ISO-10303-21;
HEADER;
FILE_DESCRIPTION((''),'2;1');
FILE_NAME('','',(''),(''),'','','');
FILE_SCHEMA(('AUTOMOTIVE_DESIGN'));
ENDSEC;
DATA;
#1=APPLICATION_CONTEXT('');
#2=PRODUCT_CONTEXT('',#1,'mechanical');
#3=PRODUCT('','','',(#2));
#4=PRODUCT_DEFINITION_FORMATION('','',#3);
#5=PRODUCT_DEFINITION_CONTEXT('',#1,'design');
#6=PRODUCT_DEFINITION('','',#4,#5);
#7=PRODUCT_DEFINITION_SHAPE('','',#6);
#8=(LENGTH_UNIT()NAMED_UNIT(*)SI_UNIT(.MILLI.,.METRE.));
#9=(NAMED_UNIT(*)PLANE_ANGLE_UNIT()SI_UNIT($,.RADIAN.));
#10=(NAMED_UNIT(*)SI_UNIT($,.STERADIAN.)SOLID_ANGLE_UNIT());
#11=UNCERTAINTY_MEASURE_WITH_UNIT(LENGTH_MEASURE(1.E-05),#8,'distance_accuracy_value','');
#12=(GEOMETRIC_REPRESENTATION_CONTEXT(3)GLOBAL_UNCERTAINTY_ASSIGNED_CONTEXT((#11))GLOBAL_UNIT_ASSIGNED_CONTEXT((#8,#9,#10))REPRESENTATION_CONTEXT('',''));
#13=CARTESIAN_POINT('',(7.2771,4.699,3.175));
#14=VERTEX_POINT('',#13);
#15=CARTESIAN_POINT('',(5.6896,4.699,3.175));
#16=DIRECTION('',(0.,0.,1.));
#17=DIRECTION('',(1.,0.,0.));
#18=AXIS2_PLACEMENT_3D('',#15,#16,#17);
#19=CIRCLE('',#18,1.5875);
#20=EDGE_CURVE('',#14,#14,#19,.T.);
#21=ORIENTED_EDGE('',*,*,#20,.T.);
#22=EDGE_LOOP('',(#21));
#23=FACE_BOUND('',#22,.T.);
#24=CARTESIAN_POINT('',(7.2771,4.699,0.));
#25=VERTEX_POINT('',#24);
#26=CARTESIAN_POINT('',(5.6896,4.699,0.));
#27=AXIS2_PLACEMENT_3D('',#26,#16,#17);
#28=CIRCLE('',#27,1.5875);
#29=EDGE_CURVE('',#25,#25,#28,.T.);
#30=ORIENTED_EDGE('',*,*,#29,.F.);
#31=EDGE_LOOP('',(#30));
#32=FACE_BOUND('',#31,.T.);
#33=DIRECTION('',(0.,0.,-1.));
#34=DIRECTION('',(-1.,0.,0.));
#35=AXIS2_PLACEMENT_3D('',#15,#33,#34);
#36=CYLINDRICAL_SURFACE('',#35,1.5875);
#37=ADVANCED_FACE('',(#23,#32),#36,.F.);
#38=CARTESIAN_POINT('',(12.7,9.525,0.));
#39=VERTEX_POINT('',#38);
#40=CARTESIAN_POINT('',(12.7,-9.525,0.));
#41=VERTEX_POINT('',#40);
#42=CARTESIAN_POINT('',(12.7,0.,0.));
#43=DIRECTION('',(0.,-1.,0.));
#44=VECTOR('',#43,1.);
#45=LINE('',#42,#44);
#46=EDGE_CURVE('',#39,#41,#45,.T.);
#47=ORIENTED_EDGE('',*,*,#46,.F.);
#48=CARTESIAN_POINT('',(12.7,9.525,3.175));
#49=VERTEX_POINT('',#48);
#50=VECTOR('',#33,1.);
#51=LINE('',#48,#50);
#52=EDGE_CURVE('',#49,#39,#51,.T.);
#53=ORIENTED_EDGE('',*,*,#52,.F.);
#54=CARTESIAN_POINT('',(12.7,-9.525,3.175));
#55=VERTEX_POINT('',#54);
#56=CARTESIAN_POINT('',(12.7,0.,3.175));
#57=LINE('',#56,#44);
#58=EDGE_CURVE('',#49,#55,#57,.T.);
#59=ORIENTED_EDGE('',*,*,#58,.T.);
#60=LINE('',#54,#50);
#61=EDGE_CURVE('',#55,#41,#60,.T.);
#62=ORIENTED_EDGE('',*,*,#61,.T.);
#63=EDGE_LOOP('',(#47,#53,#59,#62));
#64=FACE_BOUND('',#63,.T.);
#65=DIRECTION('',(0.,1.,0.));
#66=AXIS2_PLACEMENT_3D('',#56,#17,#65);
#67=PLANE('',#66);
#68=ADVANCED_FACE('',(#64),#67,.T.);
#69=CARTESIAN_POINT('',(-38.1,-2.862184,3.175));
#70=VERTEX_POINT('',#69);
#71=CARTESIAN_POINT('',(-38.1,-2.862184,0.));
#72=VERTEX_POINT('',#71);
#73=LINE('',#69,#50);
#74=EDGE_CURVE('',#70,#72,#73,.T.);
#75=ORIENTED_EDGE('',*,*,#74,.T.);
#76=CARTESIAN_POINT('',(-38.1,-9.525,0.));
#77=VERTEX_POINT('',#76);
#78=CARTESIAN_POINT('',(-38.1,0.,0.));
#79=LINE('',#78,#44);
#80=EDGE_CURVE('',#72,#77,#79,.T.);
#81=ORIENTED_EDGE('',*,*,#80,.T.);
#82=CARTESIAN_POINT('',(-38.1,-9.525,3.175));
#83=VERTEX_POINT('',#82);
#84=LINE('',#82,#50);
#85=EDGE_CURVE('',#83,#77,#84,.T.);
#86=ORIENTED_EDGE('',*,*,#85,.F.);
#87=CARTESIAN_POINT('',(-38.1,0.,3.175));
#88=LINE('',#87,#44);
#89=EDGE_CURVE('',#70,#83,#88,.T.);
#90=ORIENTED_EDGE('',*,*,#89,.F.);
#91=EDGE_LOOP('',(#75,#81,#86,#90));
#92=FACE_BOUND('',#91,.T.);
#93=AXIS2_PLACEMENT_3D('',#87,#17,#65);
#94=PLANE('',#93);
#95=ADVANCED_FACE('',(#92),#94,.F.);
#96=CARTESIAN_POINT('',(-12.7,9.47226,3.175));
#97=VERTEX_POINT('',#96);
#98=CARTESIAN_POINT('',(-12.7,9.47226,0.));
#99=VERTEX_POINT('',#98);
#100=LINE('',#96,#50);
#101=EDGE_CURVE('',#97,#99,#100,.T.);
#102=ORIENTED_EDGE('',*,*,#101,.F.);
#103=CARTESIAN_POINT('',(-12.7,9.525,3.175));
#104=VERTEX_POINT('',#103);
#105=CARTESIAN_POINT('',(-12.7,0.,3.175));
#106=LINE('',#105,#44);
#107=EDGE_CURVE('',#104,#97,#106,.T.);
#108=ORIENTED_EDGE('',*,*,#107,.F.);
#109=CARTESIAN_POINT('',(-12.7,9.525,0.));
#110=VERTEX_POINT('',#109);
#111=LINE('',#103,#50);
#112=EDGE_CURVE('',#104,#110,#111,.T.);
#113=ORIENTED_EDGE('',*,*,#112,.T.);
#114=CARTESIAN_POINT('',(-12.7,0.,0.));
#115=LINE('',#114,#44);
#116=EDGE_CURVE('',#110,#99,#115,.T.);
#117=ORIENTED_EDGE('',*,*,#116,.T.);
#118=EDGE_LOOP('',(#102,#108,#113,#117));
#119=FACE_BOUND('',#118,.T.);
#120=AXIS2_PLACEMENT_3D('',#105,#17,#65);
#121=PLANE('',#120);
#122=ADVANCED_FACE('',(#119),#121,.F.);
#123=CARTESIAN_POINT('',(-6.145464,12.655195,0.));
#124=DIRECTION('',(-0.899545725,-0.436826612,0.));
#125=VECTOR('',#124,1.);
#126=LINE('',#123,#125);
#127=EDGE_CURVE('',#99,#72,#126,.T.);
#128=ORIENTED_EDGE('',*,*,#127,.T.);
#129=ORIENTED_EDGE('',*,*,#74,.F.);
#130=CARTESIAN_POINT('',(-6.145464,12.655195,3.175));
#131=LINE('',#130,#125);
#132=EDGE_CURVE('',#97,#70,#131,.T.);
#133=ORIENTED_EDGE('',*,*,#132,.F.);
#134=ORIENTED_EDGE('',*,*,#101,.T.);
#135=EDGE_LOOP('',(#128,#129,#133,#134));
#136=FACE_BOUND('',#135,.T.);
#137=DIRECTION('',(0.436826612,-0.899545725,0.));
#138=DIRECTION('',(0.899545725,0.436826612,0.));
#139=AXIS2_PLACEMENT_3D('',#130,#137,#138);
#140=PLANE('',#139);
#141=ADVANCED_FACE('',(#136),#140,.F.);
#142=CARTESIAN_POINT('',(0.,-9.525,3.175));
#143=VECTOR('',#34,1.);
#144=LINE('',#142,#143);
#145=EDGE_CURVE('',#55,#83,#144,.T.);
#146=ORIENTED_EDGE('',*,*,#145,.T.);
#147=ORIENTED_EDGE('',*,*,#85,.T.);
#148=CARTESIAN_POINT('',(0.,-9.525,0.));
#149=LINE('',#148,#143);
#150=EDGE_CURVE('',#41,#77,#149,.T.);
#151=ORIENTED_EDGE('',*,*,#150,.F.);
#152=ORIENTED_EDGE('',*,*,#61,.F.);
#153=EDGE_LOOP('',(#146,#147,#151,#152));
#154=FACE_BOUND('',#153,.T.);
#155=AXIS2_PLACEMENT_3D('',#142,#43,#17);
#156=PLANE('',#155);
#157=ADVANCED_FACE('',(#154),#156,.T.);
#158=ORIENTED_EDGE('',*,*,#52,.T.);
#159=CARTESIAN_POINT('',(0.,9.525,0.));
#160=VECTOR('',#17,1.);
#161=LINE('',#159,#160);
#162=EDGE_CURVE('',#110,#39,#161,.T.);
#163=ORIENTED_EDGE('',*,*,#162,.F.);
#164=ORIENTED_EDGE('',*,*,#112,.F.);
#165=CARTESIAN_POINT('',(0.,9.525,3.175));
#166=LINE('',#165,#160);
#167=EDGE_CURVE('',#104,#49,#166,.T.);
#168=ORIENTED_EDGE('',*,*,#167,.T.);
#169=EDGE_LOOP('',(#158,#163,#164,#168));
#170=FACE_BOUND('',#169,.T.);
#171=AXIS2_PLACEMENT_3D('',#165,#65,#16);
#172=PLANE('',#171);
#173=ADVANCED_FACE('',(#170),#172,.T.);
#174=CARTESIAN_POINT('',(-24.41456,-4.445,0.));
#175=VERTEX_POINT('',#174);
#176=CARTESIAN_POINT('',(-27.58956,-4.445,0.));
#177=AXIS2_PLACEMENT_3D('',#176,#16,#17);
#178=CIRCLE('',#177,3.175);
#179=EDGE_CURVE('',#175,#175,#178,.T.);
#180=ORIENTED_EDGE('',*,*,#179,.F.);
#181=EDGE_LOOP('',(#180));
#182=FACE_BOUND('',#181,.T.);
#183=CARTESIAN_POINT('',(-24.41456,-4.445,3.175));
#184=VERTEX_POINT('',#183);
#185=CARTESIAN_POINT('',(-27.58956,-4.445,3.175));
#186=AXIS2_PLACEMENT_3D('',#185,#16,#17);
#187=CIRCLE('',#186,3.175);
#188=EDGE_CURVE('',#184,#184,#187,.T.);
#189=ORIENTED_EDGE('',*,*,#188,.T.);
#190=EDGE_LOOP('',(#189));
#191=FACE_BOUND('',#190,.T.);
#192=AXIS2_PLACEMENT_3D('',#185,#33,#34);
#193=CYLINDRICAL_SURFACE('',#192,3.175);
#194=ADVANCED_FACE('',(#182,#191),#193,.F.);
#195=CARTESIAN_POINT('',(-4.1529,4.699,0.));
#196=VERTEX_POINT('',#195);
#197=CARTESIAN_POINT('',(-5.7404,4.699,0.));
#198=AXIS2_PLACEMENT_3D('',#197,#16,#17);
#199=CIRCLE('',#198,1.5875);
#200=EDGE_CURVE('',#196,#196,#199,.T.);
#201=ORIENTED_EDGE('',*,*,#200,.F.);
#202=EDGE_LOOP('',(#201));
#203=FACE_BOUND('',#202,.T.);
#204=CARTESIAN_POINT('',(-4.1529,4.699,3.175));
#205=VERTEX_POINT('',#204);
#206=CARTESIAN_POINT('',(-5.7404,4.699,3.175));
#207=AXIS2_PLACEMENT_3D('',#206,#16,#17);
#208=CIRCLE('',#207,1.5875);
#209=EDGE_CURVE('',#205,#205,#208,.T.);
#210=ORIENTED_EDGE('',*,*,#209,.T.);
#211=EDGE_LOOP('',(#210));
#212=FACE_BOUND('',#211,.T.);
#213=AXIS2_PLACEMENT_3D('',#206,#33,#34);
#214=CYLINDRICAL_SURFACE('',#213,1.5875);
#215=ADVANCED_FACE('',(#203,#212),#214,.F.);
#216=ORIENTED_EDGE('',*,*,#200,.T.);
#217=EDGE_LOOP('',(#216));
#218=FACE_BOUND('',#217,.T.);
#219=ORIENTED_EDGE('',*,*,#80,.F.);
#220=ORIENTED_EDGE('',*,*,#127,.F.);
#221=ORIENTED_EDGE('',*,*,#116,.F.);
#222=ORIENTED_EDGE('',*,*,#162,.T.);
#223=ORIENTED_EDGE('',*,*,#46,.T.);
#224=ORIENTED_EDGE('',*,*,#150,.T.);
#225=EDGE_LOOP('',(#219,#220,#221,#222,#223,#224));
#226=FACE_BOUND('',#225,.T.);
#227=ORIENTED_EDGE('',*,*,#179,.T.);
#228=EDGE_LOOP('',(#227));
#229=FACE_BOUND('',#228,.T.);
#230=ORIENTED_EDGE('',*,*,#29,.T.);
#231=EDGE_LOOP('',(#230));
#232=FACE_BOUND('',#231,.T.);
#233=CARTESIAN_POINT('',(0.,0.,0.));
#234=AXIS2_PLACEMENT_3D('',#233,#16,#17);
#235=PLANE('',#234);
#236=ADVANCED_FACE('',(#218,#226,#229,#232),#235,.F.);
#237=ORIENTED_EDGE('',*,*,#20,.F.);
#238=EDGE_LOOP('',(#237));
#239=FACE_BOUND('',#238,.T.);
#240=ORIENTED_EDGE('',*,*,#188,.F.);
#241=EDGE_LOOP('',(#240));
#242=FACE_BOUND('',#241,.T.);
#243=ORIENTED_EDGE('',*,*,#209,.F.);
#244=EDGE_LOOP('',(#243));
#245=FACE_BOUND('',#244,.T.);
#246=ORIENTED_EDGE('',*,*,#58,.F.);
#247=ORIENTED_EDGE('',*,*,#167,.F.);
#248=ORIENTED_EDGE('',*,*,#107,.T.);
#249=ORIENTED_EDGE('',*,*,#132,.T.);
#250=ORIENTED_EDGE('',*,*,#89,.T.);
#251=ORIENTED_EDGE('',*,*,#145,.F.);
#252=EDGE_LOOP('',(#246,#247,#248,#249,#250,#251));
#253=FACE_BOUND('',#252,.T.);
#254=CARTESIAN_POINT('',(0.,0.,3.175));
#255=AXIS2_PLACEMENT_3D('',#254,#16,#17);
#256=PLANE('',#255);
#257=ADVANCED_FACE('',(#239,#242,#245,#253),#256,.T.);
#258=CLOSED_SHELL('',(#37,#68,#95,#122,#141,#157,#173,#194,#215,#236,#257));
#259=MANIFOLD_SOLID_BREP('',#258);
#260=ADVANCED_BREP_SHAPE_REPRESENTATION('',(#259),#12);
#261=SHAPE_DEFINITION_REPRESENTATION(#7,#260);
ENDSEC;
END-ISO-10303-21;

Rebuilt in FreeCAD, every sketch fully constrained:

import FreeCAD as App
import Part
import Sketcher
from FreeCAD import Vector
Q = App.Units.Quantity


def add_polygon(sketch, points):
    """Adds a closed chain of lines whose ends are joined by coincident constraints."""
    first, n = sketch.GeometryCount, len(points)
    for a, b in zip(points, points[1:] + points[:1]):
        sketch.addGeometry(Part.LineSegment(App.Vector(*a, 0), App.Vector(*b, 0)), False)
    for i in range(n):
        sketch.addConstraint(Sketcher.Constraint("Coincident", first + i, 2, first + (i + 1) % n, 1))

doc = App.newDocument("Part")
body = doc.addObject("PartDesign::Body", "Body")

# Sketch on XY plane
sketch1 = body.newObject("Sketcher::SketchObject", "Sketch")
sketch1.AttachmentSupport = (doc.getObject("XY_Plane"), [""])
sketch1.MapMode = "FlatFace"
add_polygon(sketch1, [(12.7, 9.53), (-12.7, 9.53), (-12.7, 9.47), (-38.1, -2.86), (-38.1, -9.53), (12.7, -9.53)])  # lines 0-5
sketch1.addGeometry(Part.Circle(Vector(-27.59, -4.45, 0), Vector(0, 0, 1), 3.17), False)  # 6
sketch1.addGeometry(Part.Circle(Vector(-5.74, 4.7, 0), Vector(0, 0, 1), 1.59), False)  # 7
sketch1.addGeometry(Part.Circle(Vector(5.69, 4.7, 0), Vector(0, 0, 1), 1.59), False)  # 8
sketch1.addConstraint(Sketcher.Constraint("Horizontal", 0))
sketch1.addConstraint(Sketcher.Constraint("Vertical", 1))
sketch1.addConstraint(Sketcher.Constraint("Vertical", 3))
sketch1.addConstraint(Sketcher.Constraint("Horizontal", 4))
sketch1.addConstraint(Sketcher.Constraint("Vertical", 5))
sketch1.addConstraint(Sketcher.Constraint("Equal", 7, 8))
sketch1.addConstraint(Sketcher.Constraint("Symmetric", 0, 2, 4, 2, -1, 1))
sketch1.addConstraint(Sketcher.Constraint("Horizontal", 7, 3, 8, 3))
sketch1.addConstraint(Sketcher.Constraint("Diameter", 6, Q("0.25 in")))
sketch1.addConstraint(Sketcher.Constraint("DistanceX", 0, 2, 0, 1, Q("1 in")))
sketch1.addConstraint(Sketcher.Constraint("DistanceX", 4, 1, 4, 2, Q("2 in")))
sketch1.addConstraint(Sketcher.Constraint("Diameter", 7, Q("0.125 in")))
sketch1.addConstraint(Sketcher.Constraint("DistanceY", 5, 1, 5, 2, Q("0.75 in")))
sketch1.addConstraint(Sketcher.Constraint("DistanceY", 3, 2, 6, 3, Q("0.2 in")))
sketch1.addConstraint(Sketcher.Constraint("DistanceY", 6, 3, 7, 3, Q("0.36 in")))
sketch1.addConstraint(Sketcher.Constraint("DistanceX", 7, 3, 8, 3, Q("0.45 in")))
sketch1.addConstraint(Sketcher.Constraint("DistanceX", 7, 3, -1, 1, Q("0.226 in")))
sketch1.addConstraint(Sketcher.Constraint("DistanceY", 1, 2, 1, 1, Q("0.05274 mm")))
sketch1.addConstraint(Sketcher.Constraint("DistanceY", 3, 2, 3, 1, Q("6.662816 mm")))
sketch1.addConstraint(Sketcher.Constraint("DistanceX", 6, 3, -1, 1, Q("27.58956 mm")))
pad1 = body.newObject("PartDesign::Pad", "Pad")
pad1.Profile = sketch1
pad1.Length = Q("0.125 in")

doc.recompute()
